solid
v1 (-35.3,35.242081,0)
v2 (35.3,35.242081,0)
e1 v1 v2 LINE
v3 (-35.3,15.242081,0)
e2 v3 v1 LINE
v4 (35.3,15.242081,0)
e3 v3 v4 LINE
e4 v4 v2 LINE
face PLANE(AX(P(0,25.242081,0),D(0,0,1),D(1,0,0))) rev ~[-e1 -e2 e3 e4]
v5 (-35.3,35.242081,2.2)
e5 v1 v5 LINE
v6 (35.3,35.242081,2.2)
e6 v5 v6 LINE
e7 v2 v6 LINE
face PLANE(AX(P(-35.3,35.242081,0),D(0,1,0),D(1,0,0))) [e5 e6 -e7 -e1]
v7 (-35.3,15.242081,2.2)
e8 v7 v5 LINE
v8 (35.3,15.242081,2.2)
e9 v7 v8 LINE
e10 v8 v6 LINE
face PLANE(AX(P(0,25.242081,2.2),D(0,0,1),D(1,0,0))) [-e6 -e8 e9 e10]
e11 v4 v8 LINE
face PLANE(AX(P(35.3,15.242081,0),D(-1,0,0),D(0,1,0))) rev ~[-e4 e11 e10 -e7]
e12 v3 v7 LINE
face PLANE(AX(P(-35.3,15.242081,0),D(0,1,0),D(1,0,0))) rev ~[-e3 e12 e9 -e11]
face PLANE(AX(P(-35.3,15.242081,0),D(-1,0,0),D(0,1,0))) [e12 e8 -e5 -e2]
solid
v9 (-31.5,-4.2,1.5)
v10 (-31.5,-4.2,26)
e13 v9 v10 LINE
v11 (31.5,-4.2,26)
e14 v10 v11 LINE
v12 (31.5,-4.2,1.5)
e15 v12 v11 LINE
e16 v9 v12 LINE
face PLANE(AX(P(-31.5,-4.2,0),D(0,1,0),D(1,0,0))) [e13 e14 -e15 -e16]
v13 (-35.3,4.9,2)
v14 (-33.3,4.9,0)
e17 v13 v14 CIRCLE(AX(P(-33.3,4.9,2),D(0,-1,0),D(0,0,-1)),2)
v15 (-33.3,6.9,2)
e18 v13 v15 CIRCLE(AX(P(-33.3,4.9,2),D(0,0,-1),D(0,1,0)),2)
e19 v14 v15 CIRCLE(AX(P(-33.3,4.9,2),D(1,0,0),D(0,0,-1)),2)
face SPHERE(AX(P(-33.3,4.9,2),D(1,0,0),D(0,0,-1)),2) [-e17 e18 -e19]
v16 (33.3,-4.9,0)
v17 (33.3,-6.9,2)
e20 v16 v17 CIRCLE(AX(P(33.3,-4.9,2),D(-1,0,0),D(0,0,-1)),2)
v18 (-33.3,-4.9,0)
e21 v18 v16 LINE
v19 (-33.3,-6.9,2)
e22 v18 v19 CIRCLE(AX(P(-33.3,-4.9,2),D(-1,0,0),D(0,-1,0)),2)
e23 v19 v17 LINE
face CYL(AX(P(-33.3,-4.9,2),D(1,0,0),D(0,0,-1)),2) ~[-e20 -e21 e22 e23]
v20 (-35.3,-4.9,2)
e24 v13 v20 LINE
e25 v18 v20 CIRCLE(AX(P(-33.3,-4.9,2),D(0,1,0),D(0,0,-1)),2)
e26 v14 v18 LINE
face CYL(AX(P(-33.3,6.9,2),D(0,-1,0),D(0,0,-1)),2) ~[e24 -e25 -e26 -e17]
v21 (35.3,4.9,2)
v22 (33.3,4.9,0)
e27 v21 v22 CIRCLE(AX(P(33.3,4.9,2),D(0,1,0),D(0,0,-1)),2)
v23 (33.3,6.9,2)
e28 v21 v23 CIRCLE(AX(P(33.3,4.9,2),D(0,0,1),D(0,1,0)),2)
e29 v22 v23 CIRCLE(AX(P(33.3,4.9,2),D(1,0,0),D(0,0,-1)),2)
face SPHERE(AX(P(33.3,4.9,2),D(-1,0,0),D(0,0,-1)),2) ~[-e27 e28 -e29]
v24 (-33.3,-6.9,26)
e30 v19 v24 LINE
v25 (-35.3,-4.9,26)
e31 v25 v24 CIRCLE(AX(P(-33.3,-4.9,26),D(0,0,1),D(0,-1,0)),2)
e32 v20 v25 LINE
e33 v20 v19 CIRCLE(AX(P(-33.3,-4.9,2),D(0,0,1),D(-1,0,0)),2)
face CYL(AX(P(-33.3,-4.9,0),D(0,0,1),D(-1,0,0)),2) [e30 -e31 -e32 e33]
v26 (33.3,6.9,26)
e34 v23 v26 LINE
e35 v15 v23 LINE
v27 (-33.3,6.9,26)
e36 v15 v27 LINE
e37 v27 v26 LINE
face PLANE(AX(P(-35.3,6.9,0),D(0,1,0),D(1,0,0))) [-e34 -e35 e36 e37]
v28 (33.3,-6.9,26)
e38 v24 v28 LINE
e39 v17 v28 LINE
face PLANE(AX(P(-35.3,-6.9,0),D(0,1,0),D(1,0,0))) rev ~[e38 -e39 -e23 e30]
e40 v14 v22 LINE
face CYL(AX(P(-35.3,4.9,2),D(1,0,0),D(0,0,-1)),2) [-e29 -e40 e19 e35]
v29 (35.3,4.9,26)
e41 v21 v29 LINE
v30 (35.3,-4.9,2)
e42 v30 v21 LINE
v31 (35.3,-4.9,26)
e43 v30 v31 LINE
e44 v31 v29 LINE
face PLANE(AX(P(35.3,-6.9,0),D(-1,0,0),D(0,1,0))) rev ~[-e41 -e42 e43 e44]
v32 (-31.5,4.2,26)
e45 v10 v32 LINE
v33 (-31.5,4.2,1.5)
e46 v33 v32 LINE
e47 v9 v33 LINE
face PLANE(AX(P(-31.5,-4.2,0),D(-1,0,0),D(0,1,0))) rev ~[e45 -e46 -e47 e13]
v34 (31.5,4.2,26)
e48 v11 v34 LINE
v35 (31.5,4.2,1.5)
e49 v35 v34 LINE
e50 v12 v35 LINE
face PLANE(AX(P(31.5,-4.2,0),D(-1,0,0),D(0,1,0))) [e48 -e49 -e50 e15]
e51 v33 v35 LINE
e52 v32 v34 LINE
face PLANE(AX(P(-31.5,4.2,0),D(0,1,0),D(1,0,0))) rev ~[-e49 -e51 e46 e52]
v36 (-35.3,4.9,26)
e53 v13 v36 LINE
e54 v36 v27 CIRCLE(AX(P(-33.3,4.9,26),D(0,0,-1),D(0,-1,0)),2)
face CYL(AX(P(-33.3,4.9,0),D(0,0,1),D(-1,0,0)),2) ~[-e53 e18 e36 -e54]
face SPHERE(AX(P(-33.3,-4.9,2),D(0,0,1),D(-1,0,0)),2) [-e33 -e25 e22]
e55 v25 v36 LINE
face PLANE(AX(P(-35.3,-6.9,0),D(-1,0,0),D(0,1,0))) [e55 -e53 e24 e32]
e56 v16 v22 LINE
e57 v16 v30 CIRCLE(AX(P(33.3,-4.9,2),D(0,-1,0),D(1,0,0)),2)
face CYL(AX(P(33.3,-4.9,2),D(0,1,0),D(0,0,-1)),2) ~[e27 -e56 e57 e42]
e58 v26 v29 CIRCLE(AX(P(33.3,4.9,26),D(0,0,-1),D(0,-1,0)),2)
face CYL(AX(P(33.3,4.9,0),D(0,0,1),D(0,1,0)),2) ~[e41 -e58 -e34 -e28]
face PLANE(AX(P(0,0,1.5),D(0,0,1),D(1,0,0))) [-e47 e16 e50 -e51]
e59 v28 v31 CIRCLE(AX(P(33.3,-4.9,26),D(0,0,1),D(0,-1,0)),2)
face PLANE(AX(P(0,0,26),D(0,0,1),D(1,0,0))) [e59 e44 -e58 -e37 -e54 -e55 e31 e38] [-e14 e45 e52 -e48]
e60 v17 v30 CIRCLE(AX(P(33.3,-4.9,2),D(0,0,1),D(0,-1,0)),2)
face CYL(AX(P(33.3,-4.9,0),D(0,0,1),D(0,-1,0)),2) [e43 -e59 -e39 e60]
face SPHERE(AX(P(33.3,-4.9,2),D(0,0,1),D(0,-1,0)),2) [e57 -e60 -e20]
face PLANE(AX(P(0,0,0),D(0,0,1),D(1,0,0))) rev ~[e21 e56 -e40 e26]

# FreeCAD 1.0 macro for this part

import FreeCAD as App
import Part
import Sketcher

V = App.Vector


def edges_at(feature, points):
    """Names of the edges that pass closest to the given points."""
    edges = feature.Shape.Edges
    near = lambda p: min(range(len(edges)), key=lambda i: edges[i].distToShape(Part.Vertex(*p))[0])
    return sorted({f"Edge{near(p) + 1}" for p in points})

doc = App.newDocument("Part")
params = doc.addObject("Spreadsheet::Sheet", "Params")
for row, (alias, value) in enumerate([
    ("sketch1_width", "63 mm"),
    ("sketch1_width2", "70.6 mm"),
    ("sketch1_height", "13.8 mm"),
    ("sketch1_height2", "8.4 mm"),
    ("pad1_length", "26 mm"),
    ("sketch2_width", "63 mm"),
    ("sketch2_height", "8.4 mm"),
    ("pad2_length", "1.5 mm"),
    ("fillet_radius", "2 mm"),
    ("fillet2_radius", "2 mm"),
    ("sketch3_height", "20 mm"),
    ("sketch3_width", "70.6 mm"),
    ("pad3_length", "2.2 mm"),
], start=1):
    params.set(f"A{row}", alias)
    params.set(f"B{row}", "=" + value)
    params.setAlias(f"B{row}", alias)

body = doc.addObject("PartDesign::Body", "Body")

sketch1 = doc.addObject("Sketcher::SketchObject", "Sketch")
body.addObject(sketch1)
sketch1.AttachmentSupport = (doc.XY_Plane, [""])
sketch1.MapMode = "FlatFace"
sketch1.addGeometry([
    Part.LineSegment(V(-35, 7, 0), V(-35, -7, 0)),
    Part.LineSegment(V(-35, -7, 0), V(35, -7, 0)),
    Part.LineSegment(V(35, -7, 0), V(35, 7, 0)),
    Part.LineSegment(V(35, 7, 0), V(-35, 7, 0)),
    Part.LineSegment(V(32, -4, 0), V(-32, -4, 0)),
    Part.LineSegment(V(-32, -4, 0), V(-32, 4, 0)),
    Part.LineSegment(V(-32, 4, 0), V(32, 4, 0)),
    Part.LineSegment(V(32, 4, 0), V(32, -4, 0)),
], False)
sketch1.addConstraint([
    Sketcher.Constraint("Coincident", 0, 2, 1, 1),
    Sketcher.Constraint("Coincident", 1, 2, 2, 1),
    Sketcher.Constraint("Coincident", 2, 2, 3, 1),
    Sketcher.Constraint("Coincident", 3, 2, 0, 1),
    Sketcher.Constraint("Coincident", 4, 2, 5, 1),
    Sketcher.Constraint("Coincident", 5, 2, 6, 1),
    Sketcher.Constraint("Coincident", 6, 2, 7, 1),
    Sketcher.Constraint("Coincident", 7, 2, 4, 1),
    Sketcher.Constraint("Vertical", 0),
    Sketcher.Constraint("Horizontal", 1),
    Sketcher.Constraint("Vertical", 2),
    Sketcher.Constraint("Horizontal", 3),
    Sketcher.Constraint("Horizontal", 4),
    Sketcher.Constraint("Vertical", 5),
    Sketcher.Constraint("Horizontal", 6),
    Sketcher.Constraint("Vertical", 7),
    Sketcher.Constraint("Symmetric", 0, 2, 2, 2, -1, 1),
    Sketcher.Constraint("Symmetric", 4, 2, 6, 2, -1, 1),
    Sketcher.Constraint("DistanceX", 4, 2, 4, 1, 63.0),
    Sketcher.Constraint("DistanceX", 1, 1, 1, 2, 70.6),
    Sketcher.Constraint("DistanceY", 0, 2, 0, 1, 13.8),
    Sketcher.Constraint("DistanceY", 5, 1, 5, 2, 8.4),
])
sketch1.setExpression("Constraints[18]", "Params.sketch1_width")
sketch1.setExpression("Constraints[19]", "Params.sketch1_width2")
sketch1.setExpression("Constraints[20]", "Params.sketch1_height")
sketch1.setExpression("Constraints[21]", "Params.sketch1_height2")
pad1 = doc.addObject("PartDesign::Pad", "Pad")
body.addObject(pad1)
pad1.Profile = sketch1
pad1.setExpression("Length", "Params.pad1_length")

sketch2 = doc.addObject("Sketcher::SketchObject", "Sketch001")
body.addObject(sketch2)
sketch2.AttachmentSupport = (doc.XY_Plane, [""])
sketch2.MapMode = "FlatFace"
sketch2.addGeometry([
    Part.LineSegment(V(-32, 4, 0), V(-32, -4, 0)),
    Part.LineSegment(V(-32, -4, 0), V(32, -4, 0)),
    Part.LineSegment(V(32, -4, 0), V(32, 4, 0)),
    Part.LineSegment(V(32, 4, 0), V(-32, 4, 0)),
], False)
sketch2.addConstraint([
    Sketcher.Constraint("Coincident", 0, 2, 1, 1),
    Sketcher.Constraint("Coincident", 1, 2, 2, 1),
    Sketcher.Constraint("Coincident", 2, 2, 3, 1),
    Sketcher.Constraint("Coincident", 3, 2, 0, 1),
    Sketcher.Constraint("Vertical", 0),
    Sketcher.Constraint("Horizontal", 1),
    Sketcher.Constraint("Vertical", 2),
    Sketcher.Constraint("Horizontal", 3),
    Sketcher.Constraint("Symmetric", 0, 2, 2, 2, -1, 1),
    Sketcher.Constraint("DistanceX", 1, 1, 1, 2, 63.0),
    Sketcher.Constraint("DistanceY", 0, 2, 0, 1, 8.4),
])
sketch2.setExpression("Constraints[9]", "Params.sketch2_width")
sketch2.setExpression("Constraints[10]", "Params.sketch2_height")
pad2 = doc.addObject("PartDesign::Pad", "Pad001")
body.addObject(pad2)
pad2.Profile = sketch2
pad2.setExpression("Length", "Params.pad2_length")
doc.recompute()

fillet = doc.addObject("PartDesign::Fillet", "Fillet")
body.addObject(fillet)
fillet.Base = (pad2, edges_at(pad2, [(-35.3, -6.9, 13), (35.3, -6.9, 13)]))
fillet.setExpression("Radius", "Params.fillet_radius")
doc.recompute()

fillet2 = doc.addObject("PartDesign::Fillet", "Fillet001")
body.addObject(fillet2)
fillet2.Base = (fillet, edges_at(fillet, [
    (0, 6.9, 0),
    (0, -6.9, 0),
    (-35.3, 6.9, 13),
    (35.3, 6.9, 13),
]))
fillet2.setExpression("Radius", "Params.fillet2_radius")
body2 = doc.addObject("PartDesign::Body", "Body001")

sketch3 = doc.addObject("Sketcher::SketchObject", "Sketch002")
body2.addObject(sketch3)
sketch3.AttachmentSupport = (doc.getObject("XY_Plane001"), [""])
sketch3.MapMode = "FlatFace"
sketch3.addGeometry([
    Part.LineSegment(V(-35, 35, 0), V(-35, 15, 0)),
    Part.LineSegment(V(-35, 15, 0), V(35, 15, 0)),
    Part.LineSegment(V(35, 15, 0), V(35, 35, 0)),
    Part.LineSegment(V(35, 35, 0), V(-35, 35, 0)),
], False)
sketch3.addConstraint([
    Sketcher.Constraint("Coincident", 0, 2, 1, 1),
    Sketcher.Constraint("Coincident", 1, 2, 2, 1),
    Sketcher.Constraint("Coincident", 2, 2, 3, 1),
    Sketcher.Constraint("Coincident", 3, 2, 0, 1),
    Sketcher.Constraint("Vertical", 0),
    Sketcher.Constraint("Horizontal", 1),
    Sketcher.Constraint("Vertical", 2),
    Sketcher.Constraint("Horizontal", 3),
    Sketcher.Constraint("DistanceY", 0, 2, 0, 1, 20.0),
    Sketcher.Constraint("DistanceX", 1, 1, 1, 2, 70.6),
    Sketcher.Constraint("DistanceX", 0, 2, -1, 1, 35.3),
    Sketcher.Constraint("DistanceY", -1, 1, 0, 2, 15.242081),
])
sketch3.setExpression("Constraints[8]", "Params.sketch3_height")
sketch3.setExpression("Constraints[9]", "Params.sketch3_width")
pad3 = doc.addObject("PartDesign::Pad", "Pad002")
body2.addObject(pad3)
pad3.Profile = sketch3
pad3.setExpression("Length", "Params.pad3_length")

doc.recompute()
